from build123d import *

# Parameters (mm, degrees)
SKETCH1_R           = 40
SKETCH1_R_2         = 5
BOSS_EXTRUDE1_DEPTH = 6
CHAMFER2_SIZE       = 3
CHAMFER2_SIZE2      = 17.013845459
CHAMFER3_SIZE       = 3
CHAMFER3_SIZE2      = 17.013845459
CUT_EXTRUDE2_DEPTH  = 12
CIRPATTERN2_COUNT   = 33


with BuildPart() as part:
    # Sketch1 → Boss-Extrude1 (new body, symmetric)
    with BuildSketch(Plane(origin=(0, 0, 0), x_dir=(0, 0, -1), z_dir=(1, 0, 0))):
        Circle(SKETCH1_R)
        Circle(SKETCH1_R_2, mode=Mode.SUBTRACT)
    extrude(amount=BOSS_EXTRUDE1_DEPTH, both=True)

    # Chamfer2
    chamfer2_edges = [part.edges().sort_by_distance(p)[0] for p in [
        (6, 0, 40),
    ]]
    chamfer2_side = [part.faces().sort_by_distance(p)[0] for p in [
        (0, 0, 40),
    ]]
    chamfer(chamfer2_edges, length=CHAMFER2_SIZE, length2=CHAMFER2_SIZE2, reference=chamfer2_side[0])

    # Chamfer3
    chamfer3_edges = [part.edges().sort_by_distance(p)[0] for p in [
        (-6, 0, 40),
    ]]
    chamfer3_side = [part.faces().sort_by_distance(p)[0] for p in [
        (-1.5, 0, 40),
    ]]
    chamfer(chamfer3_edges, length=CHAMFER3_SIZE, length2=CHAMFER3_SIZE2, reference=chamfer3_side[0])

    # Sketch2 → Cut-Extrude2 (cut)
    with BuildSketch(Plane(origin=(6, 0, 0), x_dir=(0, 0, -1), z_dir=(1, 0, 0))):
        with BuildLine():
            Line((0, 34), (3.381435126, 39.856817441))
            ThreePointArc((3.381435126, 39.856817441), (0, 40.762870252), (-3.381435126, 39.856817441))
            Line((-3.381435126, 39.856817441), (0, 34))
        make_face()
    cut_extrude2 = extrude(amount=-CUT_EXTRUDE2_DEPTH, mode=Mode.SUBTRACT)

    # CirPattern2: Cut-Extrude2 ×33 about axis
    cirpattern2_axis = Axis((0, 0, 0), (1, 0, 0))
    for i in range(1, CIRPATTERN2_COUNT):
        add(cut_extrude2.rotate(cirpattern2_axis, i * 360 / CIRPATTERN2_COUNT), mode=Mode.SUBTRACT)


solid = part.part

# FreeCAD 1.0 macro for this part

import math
import FreeCAD as App
import Part
import Sketcher

V = App.Vector
Q = App.Units.Quantity


def edges_at(feature, points):
    """Names of the edges that pass closest to the given points."""
    edges = feature.Shape.Edges
    near = lambda p: min(range(len(edges)), key=lambda i: edges[i].distToShape(Part.Vertex(*p))[0])
    return sorted({f"Edge{near(p) + 1}" for p in points})

doc = App.newDocument("Part")
body = doc.addObject("PartDesign::Body", "Body")

sketch1 = doc.addObject("Sketcher::SketchObject", "Sketch")
body.addObject(sketch1)
sketch1.AttachmentSupport = (doc.YZ_Plane, [""])
sketch1.MapMode = "FlatFace"
sketch1.addGeometry(Part.Circle(V(0, 0, 0), V(0, 0, 1), 40), False)
sketch1.addGeometry(Part.Circle(V(0, 0, 0), V(0, 0, 1), 5), False)
sketch1.addConstraint(Sketcher.Constraint("Coincident", 0, 3, -1, 1))
sketch1.addConstraint(Sketcher.Constraint("Coincident", 1, 3, -1, 1))
sketch1.addConstraint(Sketcher.Constraint("Diameter", 0, Q("80 mm")))
sketch1.addConstraint(Sketcher.Constraint("Diameter", 1, Q("10 mm")))
pad1 = doc.addObject("PartDesign::Pad", "Pad")
body.addObject(pad1)
pad1.Profile = sketch1
pad1.Length = 12
pad1.Midplane = True
doc.recompute()

chamfer = doc.addObject("PartDesign::Chamfer", "Chamfer")
body.addObject(chamfer)
chamfer.Base = (pad1, edges_at(pad1, [(6, 0, 40)]))
chamfer.ChamferType = "Two distances"
chamfer.Size = 3
chamfer.Size2 = 17.013845
doc.recompute()

chamfer2 = doc.addObject("PartDesign::Chamfer", "Chamfer001")
body.addObject(chamfer2)
chamfer2.Base = (chamfer, edges_at(chamfer, [(-6, 0, 40)]))
chamfer2.ChamferType = "Two distances"
chamfer2.Size = 3
chamfer2.Size2 = 17.013845

sketch2 = doc.addObject("Sketcher::SketchObject", "Sketch001")
body.addObject(sketch2)
sketch2.AttachmentSupport = (doc.YZ_Plane, [""])
sketch2.MapMode = "FlatFace"
sketch2.AttachmentOffset = App.Placement(V(0, 0, 6), App.Rotation())
sketch2.addGeometry(Part.LineSegment(V(34, 0, 0), V(40, -3, 0)), False)
sketch2.addGeometry(Part.ArcOfCircle(Part.Circle(V(34, 0, 0), V(0, 0, 1), 7), math.radians(-30), math.radians(30)), False)
sketch2.addGeometry(Part.LineSegment(V(40, 3, 0), V(34, 0, 0)), False)
sketch2.addConstraint(Sketcher.Constraint("Coincident", 0, 2, 1, 1))
sketch2.addConstraint(Sketcher.Constraint("Coincident", 1, 2, 2, 1))
sketch2.addConstraint(Sketcher.Constraint("Coincident", 2, 2, 0, 1))
sketch2.addConstraint(Sketcher.Constraint("Coincident", 2, 2, 1, 3))
sketch2.addConstraint(Sketcher.Constraint("Symmetric", 0, 2, 1, 2, -1))
sketch2.addConstraint(Sketcher.Constraint("Angle", 0, Q("-30 deg")))
sketch2.addConstraint(Sketcher.Constraint("DistanceX", -1, 1, 1, 3, Q("34 mm")))
sketch2.addConstraint(Sketcher.Constraint("Radius", 1, Q("6.76287 mm")))
pocket1 = doc.addObject("PartDesign::Pocket", "Pocket")
body.addObject(pocket1)
pocket1.Profile = sketch2
pocket1.Length = 12
doc.recompute()

polarpattern = doc.addObject("PartDesign::PolarPattern", "PolarPattern")
body.addObject(polarpattern)
polarpattern.Originals = [pocket1]
polarpattern.Axis = (doc.X_Axis, [""])
polarpattern.Angle = 360
polarpattern.Occurrences = 33
body.Tip = polarpattern

doc.recompute()
